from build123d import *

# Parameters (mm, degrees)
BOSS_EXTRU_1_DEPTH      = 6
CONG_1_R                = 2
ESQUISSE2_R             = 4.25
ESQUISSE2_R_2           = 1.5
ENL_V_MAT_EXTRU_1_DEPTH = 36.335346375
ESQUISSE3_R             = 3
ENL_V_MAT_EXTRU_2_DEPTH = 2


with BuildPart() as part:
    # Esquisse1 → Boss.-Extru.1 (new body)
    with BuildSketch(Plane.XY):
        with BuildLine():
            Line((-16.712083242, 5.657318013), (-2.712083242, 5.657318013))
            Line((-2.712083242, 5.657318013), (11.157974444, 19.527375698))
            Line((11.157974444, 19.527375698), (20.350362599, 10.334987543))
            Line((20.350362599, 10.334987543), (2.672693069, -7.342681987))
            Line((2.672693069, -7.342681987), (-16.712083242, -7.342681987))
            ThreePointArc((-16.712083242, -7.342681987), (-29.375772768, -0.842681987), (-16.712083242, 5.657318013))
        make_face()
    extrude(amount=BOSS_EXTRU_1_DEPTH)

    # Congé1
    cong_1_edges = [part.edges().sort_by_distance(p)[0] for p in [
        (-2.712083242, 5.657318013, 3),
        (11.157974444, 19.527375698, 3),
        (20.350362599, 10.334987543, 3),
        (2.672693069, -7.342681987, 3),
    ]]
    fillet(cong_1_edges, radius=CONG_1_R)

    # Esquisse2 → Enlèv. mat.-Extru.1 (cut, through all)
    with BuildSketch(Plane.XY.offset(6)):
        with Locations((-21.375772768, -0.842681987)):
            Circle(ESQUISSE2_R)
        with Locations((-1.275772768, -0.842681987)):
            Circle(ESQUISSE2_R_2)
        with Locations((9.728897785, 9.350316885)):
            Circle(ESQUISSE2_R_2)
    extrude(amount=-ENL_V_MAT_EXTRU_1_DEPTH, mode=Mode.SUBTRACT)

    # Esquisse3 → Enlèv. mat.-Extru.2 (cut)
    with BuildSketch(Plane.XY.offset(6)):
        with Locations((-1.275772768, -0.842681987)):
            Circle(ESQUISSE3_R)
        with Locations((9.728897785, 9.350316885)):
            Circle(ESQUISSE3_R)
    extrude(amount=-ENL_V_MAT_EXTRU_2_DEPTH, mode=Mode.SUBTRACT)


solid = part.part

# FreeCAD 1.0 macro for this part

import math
import FreeCAD as App
import Part
import Sketcher

V = App.Vector
Q = App.Units.Quantity


def edges_at(feature, points):
    """Names of the edges that pass closest to the given points."""
    edges = feature.Shape.Edges
    near = lambda p: min(range(len(edges)), key=lambda i: edges[i].distToShape(Part.Vertex(*p))[0])
    return sorted({f"Edge{near(p) + 1}" for p in points})

doc = App.newDocument("Part")
body = doc.addObject("PartDesign::Body", "Body")

# Sketch on XY plane
sketch1 = body.newObject("Sketcher::SketchObject", "Sketch")
sketch1.AttachmentSupport = (doc.getObject("XY_Plane"), [""])
sketch1.MapMode = "FlatFace"
sketch1.addGeometry(Part.LineSegment(V(-3, 6, 0), V(-17, 6, 0)), False)
sketch1.addGeometry(Part.ArcOfCircle(Part.Circle(V(-21, -1, 0), V(0, 0, 1), 8), math.radians(54), math.radians(306)), False)
sketch1.addGeometry(Part.LineSegment(V(-17, -7, 0), V(3, -7, 0)), False)
sketch1.addGeometry(Part.LineSegment(V(3, -7, 0), V(20, 10, 0)), False)
sketch1.addGeometry(Part.LineSegment(V(20, 10, 0), V(11, 20, 0)), False)
sketch1.addGeometry(Part.LineSegment(V(11, 20, 0), V(-3, 6, 0)), False)
sketch1.addConstraint(Sketcher.Constraint("Coincident", 0, 2, 1, 1))
sketch1.addConstraint(Sketcher.Constraint("Coincident", 1, 2, 2, 1))
sketch1.addConstraint(Sketcher.Constraint("Coincident", 2, 2, 3, 1))
sketch1.addConstraint(Sketcher.Constraint("Coincident", 3, 2, 4, 1))
sketch1.addConstraint(Sketcher.Constraint("Coincident", 4, 2, 5, 1))
sketch1.addConstraint(Sketcher.Constraint("Coincident", 5, 2, 0, 1))
sketch1.addConstraint(Sketcher.Constraint("Horizontal", 0))
sketch1.addConstraint(Sketcher.Constraint("Horizontal", 2))
sketch1.addConstraint(Sketcher.Constraint("Perpendicular", 3, 4))
sketch1.addConstraint(Sketcher.Constraint("Perpendicular", 4, 5))
sketch1.addConstraint(Sketcher.Constraint("Vertical", 0, 2, 1, 2))
sketch1.addConstraint(Sketcher.Constraint("Radius", 1, 8.0))
sketch1.addConstraint(Sketcher.Constraint("DistanceX", 0, 2, 0, 1, 14.0))
sketch1.addConstraint(Sketcher.Constraint("Angle", 3, Q("45 deg")))
sketch1.addConstraint(Sketcher.Constraint("Distance", 3, 25.0))
sketch1.addConstraint(Sketcher.Constraint("Distance", 4, 13.0))
sketch1.addConstraint(Sketcher.Constraint("DistanceY", 1, 2, 0, 2, 13.0))
sketch1.addConstraint(Sketcher.Constraint("DistanceY", 1, 3, -1, 1, 0.842682))
sketch1.addConstraint(Sketcher.Constraint("DistanceX", 1, 3, -1, 1, 21.375773))
pad1 = body.newObject("PartDesign::Pad", "Pad")
pad1.Profile = sketch1
pad1.Length = 6
doc.recompute()

fillet = body.newObject("PartDesign::Fillet", "Fillet")
fillet.Base = (pad1, edges_at(pad1, [
    (-2.712, 5.657, 3),
    (11.158, 19.527, 3),
    (20.35, 10.335, 3),
    (2.673, -7.343, 3),
]))
fillet.Radius = 2

# Sketch on XY plane
sketch2 = body.newObject("Sketcher::SketchObject", "Sketch001")
sketch2.AttachmentSupport = (doc.getObject("XY_Plane"), [""])
sketch2.MapMode = "FlatFace"
sketch2.AttachmentOffset = App.Placement(V(0, 0, 6), App.Rotation())
sketch2.addGeometry(Part.Circle(V(-21.4, -0.8, 0), V(0, 0, 1), 4.2), False)
sketch2.addGeometry(Part.Circle(V(-1.3, -0.8, 0), V(0, 0, 1), 1.5), False)
sketch2.addGeometry(Part.Circle(V(9.7, 9.4, 0), V(0, 0, 1), 1.5), False)
sketch2.addConstraint(Sketcher.Constraint("Equal", 1, 2))
sketch2.addConstraint(Sketcher.Constraint("Horizontal", 0, 3, 1, 3))
sketch2.addConstraint(Sketcher.Constraint("Diameter", 1, 3.0))
sketch2.addConstraint(Sketcher.Constraint("Diameter", 0, 8.5))
sketch2.addConstraint(Sketcher.Constraint("DistanceX", 0, 3, 1, 3, 20.1))
sketch2.addConstraint(Sketcher.Constraint("DistanceY", 1, 3, 2, 3, 10.192999))
sketch2.addConstraint(Sketcher.Constraint("DistanceY", 0, 3, -1, 1, 0.842682))
sketch2.addConstraint(Sketcher.Constraint("DistanceX", 1, 3, 2, 3, 11.004671))
sketch2.addConstraint(Sketcher.Constraint("DistanceX", 0, 3, -1, 1, 21.375773))
pocket1 = body.newObject("PartDesign::Pocket", "Pocket")
pocket1.Profile = sketch2
pocket1.Type = "ThroughAll"

# Sketch on XY plane
sketch3 = body.newObject("Sketcher::SketchObject", "Sketch002")
sketch3.AttachmentSupport = (doc.getObject("XY_Plane"), [""])
sketch3.MapMode = "FlatFace"
sketch3.AttachmentOffset = App.Placement(V(0, 0, 6), App.Rotation())
sketch3.addGeometry(Part.Circle(V(-1.3, -0.8, 0), V(0, 0, 1), 3), False)
sketch3.addGeometry(Part.Circle(V(9.7, 9.4, 0), V(0, 0, 1), 3), False)
sketch3.addConstraint(Sketcher.Constraint("Equal", 0, 1))
sketch3.addConstraint(Sketcher.Constraint("Diameter", 0, 6.0))
sketch3.addConstraint(Sketcher.Constraint("DistanceY", 0, 3, 1, 3, 10.192999))
sketch3.addConstraint(Sketcher.Constraint("DistanceY", 0, 3, -1, 1, 0.842682))
sketch3.addConstraint(Sketcher.Constraint("DistanceX", 0, 3, 1, 3, 11.004671))
sketch3.addConstraint(Sketcher.Constraint("DistanceX", 0, 3, -1, 1, 1.275773))
pocket2 = body.newObject("PartDesign::Pocket", "Pocket001")
pocket2.Profile = sketch3
pocket2.Length = 2

doc.recompute()
